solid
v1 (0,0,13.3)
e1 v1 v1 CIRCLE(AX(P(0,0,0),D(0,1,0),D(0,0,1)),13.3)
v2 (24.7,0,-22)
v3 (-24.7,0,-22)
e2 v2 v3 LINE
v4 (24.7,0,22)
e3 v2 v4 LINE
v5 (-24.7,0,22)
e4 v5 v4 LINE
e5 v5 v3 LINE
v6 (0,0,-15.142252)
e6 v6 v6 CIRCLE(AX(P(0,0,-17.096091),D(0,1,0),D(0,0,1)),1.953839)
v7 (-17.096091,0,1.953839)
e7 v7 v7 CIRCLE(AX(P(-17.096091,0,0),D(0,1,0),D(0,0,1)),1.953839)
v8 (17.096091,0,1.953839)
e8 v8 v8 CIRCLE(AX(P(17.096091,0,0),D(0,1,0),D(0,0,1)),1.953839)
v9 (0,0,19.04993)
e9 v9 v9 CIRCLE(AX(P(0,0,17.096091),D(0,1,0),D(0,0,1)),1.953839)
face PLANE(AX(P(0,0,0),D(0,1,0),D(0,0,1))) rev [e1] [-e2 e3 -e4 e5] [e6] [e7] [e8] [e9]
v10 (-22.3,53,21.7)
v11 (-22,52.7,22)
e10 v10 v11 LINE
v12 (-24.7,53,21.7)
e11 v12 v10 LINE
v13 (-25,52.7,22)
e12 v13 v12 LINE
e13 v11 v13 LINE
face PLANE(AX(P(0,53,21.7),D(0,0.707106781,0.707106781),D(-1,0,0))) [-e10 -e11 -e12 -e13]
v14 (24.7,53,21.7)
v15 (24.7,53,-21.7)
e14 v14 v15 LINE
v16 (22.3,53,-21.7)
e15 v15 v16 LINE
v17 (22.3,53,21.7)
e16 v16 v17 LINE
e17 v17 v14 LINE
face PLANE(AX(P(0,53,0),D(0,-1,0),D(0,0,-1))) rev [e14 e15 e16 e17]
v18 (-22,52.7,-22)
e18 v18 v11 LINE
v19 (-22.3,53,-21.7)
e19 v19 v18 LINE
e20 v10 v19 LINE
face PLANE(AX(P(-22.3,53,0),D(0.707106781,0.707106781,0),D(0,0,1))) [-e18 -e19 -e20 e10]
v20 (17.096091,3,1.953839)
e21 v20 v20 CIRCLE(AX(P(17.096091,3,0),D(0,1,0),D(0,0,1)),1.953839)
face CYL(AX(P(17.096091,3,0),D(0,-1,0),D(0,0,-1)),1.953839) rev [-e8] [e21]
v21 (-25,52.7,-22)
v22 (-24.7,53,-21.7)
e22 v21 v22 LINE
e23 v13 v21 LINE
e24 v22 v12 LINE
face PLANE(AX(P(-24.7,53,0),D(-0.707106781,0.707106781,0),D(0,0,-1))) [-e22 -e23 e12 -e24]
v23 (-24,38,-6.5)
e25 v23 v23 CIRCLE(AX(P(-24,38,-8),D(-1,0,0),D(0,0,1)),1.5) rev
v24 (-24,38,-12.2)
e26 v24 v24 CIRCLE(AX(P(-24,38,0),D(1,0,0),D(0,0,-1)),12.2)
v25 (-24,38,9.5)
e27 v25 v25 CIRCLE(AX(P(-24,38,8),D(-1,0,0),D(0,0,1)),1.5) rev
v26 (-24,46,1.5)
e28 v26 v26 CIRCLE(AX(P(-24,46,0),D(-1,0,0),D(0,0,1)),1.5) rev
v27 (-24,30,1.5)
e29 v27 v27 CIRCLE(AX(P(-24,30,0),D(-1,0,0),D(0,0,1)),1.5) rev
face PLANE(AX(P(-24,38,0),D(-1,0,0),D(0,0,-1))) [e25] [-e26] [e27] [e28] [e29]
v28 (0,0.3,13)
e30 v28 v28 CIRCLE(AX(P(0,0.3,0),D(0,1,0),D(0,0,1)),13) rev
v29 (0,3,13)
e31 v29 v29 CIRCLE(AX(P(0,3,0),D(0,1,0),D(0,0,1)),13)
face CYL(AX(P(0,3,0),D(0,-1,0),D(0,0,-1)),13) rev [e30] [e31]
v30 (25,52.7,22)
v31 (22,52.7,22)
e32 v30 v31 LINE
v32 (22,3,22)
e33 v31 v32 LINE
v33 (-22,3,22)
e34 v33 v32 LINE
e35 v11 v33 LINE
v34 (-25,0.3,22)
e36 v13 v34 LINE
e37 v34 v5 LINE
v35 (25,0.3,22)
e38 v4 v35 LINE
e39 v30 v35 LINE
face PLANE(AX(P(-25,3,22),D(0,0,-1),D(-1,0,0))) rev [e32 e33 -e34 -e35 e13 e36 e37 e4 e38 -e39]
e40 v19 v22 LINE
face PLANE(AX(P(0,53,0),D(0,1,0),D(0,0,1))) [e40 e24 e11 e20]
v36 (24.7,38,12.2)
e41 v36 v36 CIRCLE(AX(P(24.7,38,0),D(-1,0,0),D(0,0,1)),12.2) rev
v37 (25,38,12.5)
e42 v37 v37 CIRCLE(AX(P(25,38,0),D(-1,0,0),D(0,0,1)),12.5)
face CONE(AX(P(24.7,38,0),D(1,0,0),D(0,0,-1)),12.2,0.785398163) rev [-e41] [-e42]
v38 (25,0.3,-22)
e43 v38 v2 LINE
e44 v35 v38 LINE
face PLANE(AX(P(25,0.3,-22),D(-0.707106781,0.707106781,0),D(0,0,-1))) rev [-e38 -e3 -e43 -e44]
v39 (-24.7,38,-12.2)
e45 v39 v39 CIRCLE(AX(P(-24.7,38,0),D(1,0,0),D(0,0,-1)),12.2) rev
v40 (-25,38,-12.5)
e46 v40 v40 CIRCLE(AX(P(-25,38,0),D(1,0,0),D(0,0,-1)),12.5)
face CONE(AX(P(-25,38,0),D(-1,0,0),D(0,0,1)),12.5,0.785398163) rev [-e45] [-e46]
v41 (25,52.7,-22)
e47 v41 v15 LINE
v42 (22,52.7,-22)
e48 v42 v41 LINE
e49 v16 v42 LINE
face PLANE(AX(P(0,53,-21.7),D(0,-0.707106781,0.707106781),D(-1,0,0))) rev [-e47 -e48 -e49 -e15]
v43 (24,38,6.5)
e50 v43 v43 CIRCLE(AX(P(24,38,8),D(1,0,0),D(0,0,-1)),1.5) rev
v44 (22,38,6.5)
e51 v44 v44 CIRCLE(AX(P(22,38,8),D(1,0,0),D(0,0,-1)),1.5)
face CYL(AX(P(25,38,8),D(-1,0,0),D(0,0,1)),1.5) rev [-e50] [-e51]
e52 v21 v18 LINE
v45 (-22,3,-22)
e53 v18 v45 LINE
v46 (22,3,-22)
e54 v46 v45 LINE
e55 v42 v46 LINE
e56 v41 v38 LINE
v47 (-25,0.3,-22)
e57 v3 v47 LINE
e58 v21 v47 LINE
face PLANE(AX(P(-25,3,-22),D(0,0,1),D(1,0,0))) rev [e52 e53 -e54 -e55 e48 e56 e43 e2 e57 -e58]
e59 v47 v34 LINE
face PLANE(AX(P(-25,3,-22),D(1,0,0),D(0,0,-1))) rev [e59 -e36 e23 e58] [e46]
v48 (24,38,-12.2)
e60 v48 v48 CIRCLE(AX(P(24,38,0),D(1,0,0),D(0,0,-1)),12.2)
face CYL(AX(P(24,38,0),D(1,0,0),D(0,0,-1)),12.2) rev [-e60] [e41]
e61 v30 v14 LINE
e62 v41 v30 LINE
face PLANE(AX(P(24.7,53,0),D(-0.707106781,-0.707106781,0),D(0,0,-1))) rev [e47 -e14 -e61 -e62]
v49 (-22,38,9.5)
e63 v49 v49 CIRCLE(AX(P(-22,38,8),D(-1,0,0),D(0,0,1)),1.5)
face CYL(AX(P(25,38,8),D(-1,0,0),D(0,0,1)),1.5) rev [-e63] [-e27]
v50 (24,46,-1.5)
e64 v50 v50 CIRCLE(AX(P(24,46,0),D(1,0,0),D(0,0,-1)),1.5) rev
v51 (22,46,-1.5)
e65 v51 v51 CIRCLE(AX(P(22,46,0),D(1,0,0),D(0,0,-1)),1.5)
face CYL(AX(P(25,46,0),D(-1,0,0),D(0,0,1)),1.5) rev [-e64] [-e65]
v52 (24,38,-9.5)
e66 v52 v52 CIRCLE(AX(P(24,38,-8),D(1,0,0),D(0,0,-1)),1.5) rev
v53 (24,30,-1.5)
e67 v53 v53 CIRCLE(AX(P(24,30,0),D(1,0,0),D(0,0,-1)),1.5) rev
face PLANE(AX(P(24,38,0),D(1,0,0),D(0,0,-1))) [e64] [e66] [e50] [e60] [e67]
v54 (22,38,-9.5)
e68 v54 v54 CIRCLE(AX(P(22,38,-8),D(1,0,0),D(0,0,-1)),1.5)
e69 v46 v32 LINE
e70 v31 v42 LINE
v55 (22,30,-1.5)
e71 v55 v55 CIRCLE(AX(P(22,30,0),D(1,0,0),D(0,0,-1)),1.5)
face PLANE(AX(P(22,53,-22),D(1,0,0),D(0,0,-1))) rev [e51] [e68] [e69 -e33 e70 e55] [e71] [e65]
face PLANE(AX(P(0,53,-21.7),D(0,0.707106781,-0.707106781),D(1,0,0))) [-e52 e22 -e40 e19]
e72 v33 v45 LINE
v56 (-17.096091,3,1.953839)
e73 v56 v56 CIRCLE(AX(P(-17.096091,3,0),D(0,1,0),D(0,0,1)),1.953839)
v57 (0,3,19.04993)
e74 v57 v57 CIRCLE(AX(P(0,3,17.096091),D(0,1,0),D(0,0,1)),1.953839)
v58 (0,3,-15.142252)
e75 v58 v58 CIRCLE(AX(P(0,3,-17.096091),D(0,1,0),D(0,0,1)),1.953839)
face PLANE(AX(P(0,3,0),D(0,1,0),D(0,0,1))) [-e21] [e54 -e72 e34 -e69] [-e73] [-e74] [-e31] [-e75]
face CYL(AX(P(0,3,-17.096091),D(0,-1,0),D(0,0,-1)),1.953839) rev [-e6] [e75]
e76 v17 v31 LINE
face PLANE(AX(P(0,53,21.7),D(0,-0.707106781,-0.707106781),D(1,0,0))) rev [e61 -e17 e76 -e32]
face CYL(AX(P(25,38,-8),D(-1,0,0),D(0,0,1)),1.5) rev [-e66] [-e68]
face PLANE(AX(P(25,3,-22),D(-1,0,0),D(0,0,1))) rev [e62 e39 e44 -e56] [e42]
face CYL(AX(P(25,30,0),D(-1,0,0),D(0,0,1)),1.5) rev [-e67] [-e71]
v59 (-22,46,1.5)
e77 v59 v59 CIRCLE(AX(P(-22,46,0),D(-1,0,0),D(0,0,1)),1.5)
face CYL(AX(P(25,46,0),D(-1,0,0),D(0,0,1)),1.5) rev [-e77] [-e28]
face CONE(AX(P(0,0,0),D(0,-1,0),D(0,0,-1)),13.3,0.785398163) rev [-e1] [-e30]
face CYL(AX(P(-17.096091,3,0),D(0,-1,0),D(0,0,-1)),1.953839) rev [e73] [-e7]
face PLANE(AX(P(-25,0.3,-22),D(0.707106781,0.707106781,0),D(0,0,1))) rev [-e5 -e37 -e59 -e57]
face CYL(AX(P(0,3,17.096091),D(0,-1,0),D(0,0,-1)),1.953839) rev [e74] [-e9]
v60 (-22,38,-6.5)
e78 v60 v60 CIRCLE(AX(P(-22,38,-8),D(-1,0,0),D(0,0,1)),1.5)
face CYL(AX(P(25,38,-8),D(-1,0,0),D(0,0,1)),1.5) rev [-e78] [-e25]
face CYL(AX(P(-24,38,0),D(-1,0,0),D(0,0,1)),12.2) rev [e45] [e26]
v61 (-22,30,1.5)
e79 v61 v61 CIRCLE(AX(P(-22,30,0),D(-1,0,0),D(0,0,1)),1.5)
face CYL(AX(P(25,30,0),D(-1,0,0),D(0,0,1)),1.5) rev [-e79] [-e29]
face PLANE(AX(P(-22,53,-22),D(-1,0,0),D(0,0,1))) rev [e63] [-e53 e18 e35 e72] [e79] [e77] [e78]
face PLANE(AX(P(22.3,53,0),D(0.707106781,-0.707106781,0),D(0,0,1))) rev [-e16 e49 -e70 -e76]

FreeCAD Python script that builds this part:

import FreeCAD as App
import Part
import Sketcher
from FreeCAD import Vector


def edges_at(feature, points):
    """Names of the edges that pass closest to the given points."""
    edges = feature.Shape.Edges
    near = lambda p: min(range(len(edges)), key=lambda i: edges[i].distToShape(Part.Vertex(*p))[0])
    return sorted({f"Edge{near(p) + 1}" for p in points})


def add_polygon(sketch, points):
    """Adds a closed chain of lines whose ends are joined by coincident constraints."""
    first, n = sketch.GeometryCount, len(points)
    for a, b in zip(points, points[1:] + points[:1]):
        sketch.addGeometry(Part.LineSegment(App.Vector(*a, 0), App.Vector(*b, 0)), False)
    for i in range(n):
        sketch.addConstraint(Sketcher.Constraint("Coincident", first + i, 2, first + (i + 1) % n, 1))

doc = App.newDocument("Part")
params = doc.addObject("Spreadsheet::Sheet", "Params")
for row, (alias, value) in enumerate([
    ("sketch1_diameter", "26 mm"),
    ("sketch1_width", "50 mm"),
    ("sketch1_height", "44 mm"),
    ("pad1_length", "3 mm"),
    ("sketch2_width", "3 mm"),
    ("sketch2_height", "44 mm"),
    ("pad2_length", "50 mm"),
    ("sketch3_diameter", "3 mm"),
    ("sketch4_diameter", "24.4 mm"),
    ("pocket2_length", "1 mm"),
    ("chamfer_size", "0.3 mm"),
], start=1):
    params.set(f"A{row}", alias)
    params.set(f"B{row}", "=" + value)
    params.setAlias(f"B{row}", alias)

body = doc.addObject("PartDesign::Body", "Body")

# Sketch on XZ plane
sketch1 = body.newObject("Sketcher::SketchObject", "Sketch")
sketch1.AttachmentSupport = (doc.getObject("XZ_Plane"), [""])
sketch1.MapMode = "FlatFace"
add_polygon(sketch1, [(-25, -22), (-25, 22), (25, 22), (25, -22)])  # lines 0-3
sketch1.addGeometry(Part.Circle(Vector(0, 17.1, 0), Vector(0, 0, 1), 2), False)  # 4
sketch1.addGeometry(Part.Circle(Vector(-17.1, 0, 0), Vector(0, 0, 1), 2), False)  # 5
sketch1.addGeometry(Part.Circle(Vector(0, 0, 0), Vector(0, 0, 1), 13), False)  # 6
sketch1.addGeometry(Part.Circle(Vector(17.1, 0, 0), Vector(0, 0, 1), 2), False)  # 7
sketch1.addGeometry(Part.Circle(Vector(0, -17.1, 0), Vector(0, 0, 1), 2), False)  # 8
sketch1.addConstraint(Sketcher.Constraint("Vertical", 0))
sketch1.addConstraint(Sketcher.Constraint("Horizontal", 1))
sketch1.addConstraint(Sketcher.Constraint("Vertical", 2))
sketch1.addConstraint(Sketcher.Constraint("Horizontal", 3))
sketch1.addConstraint(Sketcher.Constraint("Coincident", 6, 3, -1, 1))
sketch1.addConstraint(Sketcher.Constraint("Equal", 4, 5))
sketch1.addConstraint(Sketcher.Constraint("Equal", 5, 7))
sketch1.addConstraint(Sketcher.Constraint("Equal", 7, 8))
sketch1.addConstraint(Sketcher.Constraint("Symmetric", 5, 3, 7, 3, -1, 1))
sketch1.addConstraint(Sketcher.Constraint("Symmetric", 4, 3, 8, 3, -1, 1))
sketch1.addConstraint(Sketcher.Constraint("Symmetric", 0, 2, 2, 2, -1, 1))
sketch1.addConstraint(Sketcher.Constraint("PointOnObject", 4, 3, -2))
sketch1.addConstraint(Sketcher.Constraint("PointOnObject", 5, 3, -1))
sketch1.addConstraint(Sketcher.Constraint("Diameter", 6, 26.0))
sketch1.addConstraint(Sketcher.Constraint("DistanceX", 1, 1, 1, 2, 50.0))
sketch1.addConstraint(Sketcher.Constraint("DistanceY", 0, 1, 0, 2, 44.0))
sketch1.addConstraint(Sketcher.Constraint("Diameter", 4, 3.907678))
sketch1.addConstraint(Sketcher.Constraint("DistanceY", -1, 1, 4, 3, 17.096091))
sketch1.addConstraint(Sketcher.Constraint("DistanceX", 5, 3, -1, 1, 17.096091))
sketch1.setExpression("Constraints[17]", "Params.sketch1_diameter")
sketch1.setExpression("Constraints[18]", "Params.sketch1_width")
sketch1.setExpression("Constraints[19]", "Params.sketch1_height")
pad1 = body.newObject("PartDesign::Pad", "Pad")
pad1.Profile = sketch1
pad1.setExpression("Length", "Params.pad1_length")
pad1.Reversed = True

# Sketch on XZ plane
sketch2 = body.newObject("Sketcher::SketchObject", "Sketch001")
sketch2.AttachmentSupport = (doc.getObject("XZ_Plane"), [""])
sketch2.MapMode = "FlatFace"
sketch2.AttachmentOffset = App.Placement(Vector(0, 0, -3), App.Rotation())
add_polygon(sketch2, [(-25, -22), (-25, 22), (-22, 22), (-22, -22)])  # lines 0-3
add_polygon(sketch2, [(22, -22), (22, 22), (25, 22), (25, -22)])  # lines 4-7
sketch2.addConstraint(Sketcher.Constraint("Vertical", 0))
sketch2.addConstraint(Sketcher.Constraint("Horizontal", 1))
sketch2.addConstraint(Sketcher.Constraint("Vertical", 2))
sketch2.addConstraint(Sketcher.Constraint("Horizontal", 3))
sketch2.addConstraint(Sketcher.Constraint("Vertical", 4))
sketch2.addConstraint(Sketcher.Constraint("Horizontal", 5))
sketch2.addConstraint(Sketcher.Constraint("Vertical", 6))
sketch2.addConstraint(Sketcher.Constraint("Horizontal", 7))
sketch2.addConstraint(Sketcher.Constraint("Symmetric", 2, 2, 4, 2, -1, 1))
sketch2.addConstraint(Sketcher.Constraint("Symmetric", 0, 2, 6, 2, -1, 1))
sketch2.addConstraint(Sketcher.Constraint("Horizontal", 1, 2, 4, 2))
sketch2.addConstraint(Sketcher.Constraint("DistanceX", 1, 1, 1, 2, 3.0))
sketch2.addConstraint(Sketcher.Constraint("DistanceY", 0, 1, 0, 2, 44.0))
sketch2.addConstraint(Sketcher.Constraint("DistanceX", 0, 2, -1, 1, 25.0))
sketch2.setExpression("Constraints[19]", "Params.sketch2_width")
sketch2.setExpression("Constraints[20]", "Params.sketch2_height")
pad2 = body.newObject("PartDesign::Pad", "Pad001")
pad2.Profile = sketch2
pad2.setExpression("Length", "Params.pad2_length")
pad2.Reversed = True

# Sketch on YZ plane
sketch3 = body.newObject("Sketcher::SketchObject", "Sketch002")
sketch3.AttachmentSupport = (doc.getObject("YZ_Plane"), [""])
sketch3.MapMode = "FlatFace"
sketch3.AttachmentOffset = App.Placement(Vector(0, 0, -25), App.Rotation())
sketch3.addGeometry(Part.Circle(Vector(46, 0, 0), Vector(0, 0, 1), 1.5), False)
sketch3.addGeometry(Part.Circle(Vector(38, 8, 0), Vector(0, 0, 1), 1.5), False)
sketch3.addGeometry(Part.Circle(Vector(30, 0, 0), Vector(0, 0, 1), 1.5), False)
sketch3.addGeometry(Part.Circle(Vector(38, -8, 0), Vector(0, 0, 1), 1.5), False)
sketch3.addConstraint(Sketcher.Constraint("Equal", 0, 1))
sketch3.addConstraint(Sketcher.Constraint("Equal", 1, 2))
sketch3.addConstraint(Sketcher.Constraint("Equal", 2, 3))
sketch3.addConstraint(Sketcher.Constraint("Symmetric", 1, 3, 3, 3, -1))
sketch3.addConstraint(Sketcher.Constraint("PointOnObject", 0, 3, -1))
sketch3.addConstraint(Sketcher.Constraint("PointOnObject", 2, 3, -1))
sketch3.addConstraint(Sketcher.Constraint("Diameter", 0, 3.0))
sketch3.addConstraint(Sketcher.Constraint("DistanceX", -1, 1, 0, 3, 46.0))
sketch3.addConstraint(Sketcher.Constraint("DistanceX", -1, 1, 1, 3, 38.0))
sketch3.addConstraint(Sketcher.Constraint("DistanceY", -1, 1, 1, 3, 8.0))
sketch3.addConstraint(Sketcher.Constraint("DistanceX", -1, 1, 2, 3, 30.0))
sketch3.setExpression("Constraints[6]", "Params.sketch3_diameter")
pocket1 = body.newObject("PartDesign::Pocket", "Pocket")
pocket1.Profile = sketch3
pocket1.Type = "ThroughAll"
pocket1.Reversed = True

# Sketch on YZ plane
sketch4 = body.newObject("Sketcher::SketchObject", "Sketch003")
sketch4.AttachmentSupport = (doc.getObject("YZ_Plane"), [""])
sketch4.MapMode = "FlatFace"
sketch4.AttachmentOffset = App.Placement(Vector(0, 0, 25), App.Rotation())
sketch4.addGeometry(Part.Circle(Vector(38, 0, 0), Vector(0, 0, 1), 12), False)
sketch4.addConstraint(Sketcher.Constraint("PointOnObject", 0, 3, -1))
sketch4.addConstraint(Sketcher.Constraint("Diameter", 0, 24.4))
sketch4.addConstraint(Sketcher.Constraint("DistanceX", -1, 1, 0, 3, 38.0))
sketch4.setExpression("Constraints[1]", "Params.sketch4_diameter")
pocket2 = body.newObject("PartDesign::Pocket", "Pocket001")
pocket2.Profile = sketch4
pocket2.setExpression("Length", "Params.pocket2_length")
doc.recompute()

mirrored = body.newObject("PartDesign::Mirrored", "Mirrored")
mirrored.Originals = [pocket2]
mirrored.MirrorPlane = (doc.getObject("YZ_Plane"), [""])
body.Tip = mirrored
doc.recompute()

chamfer = body.newObject("PartDesign::Chamfer", "Chamfer")
chamfer.Base = (mirrored, edges_at(mirrored, [
    (-25, 38, 12.2),
    (0, 0, -13),
    (-25, 53, 0),
    (-23.5, 53, 22),
    (-22, 53, 0),
    (-23.5, 53, -22),
    (25, 53, 0),
    (23.5, 53, -22),
    (22, 53, 0),
    (23.5, 53, 22),
    (25, 0, 0),
    (-25, 0, 0),
    (25, 38, 12.2),
]))
chamfer.setExpression("Size", "Params.chamfer_size")

doc.recompute()
